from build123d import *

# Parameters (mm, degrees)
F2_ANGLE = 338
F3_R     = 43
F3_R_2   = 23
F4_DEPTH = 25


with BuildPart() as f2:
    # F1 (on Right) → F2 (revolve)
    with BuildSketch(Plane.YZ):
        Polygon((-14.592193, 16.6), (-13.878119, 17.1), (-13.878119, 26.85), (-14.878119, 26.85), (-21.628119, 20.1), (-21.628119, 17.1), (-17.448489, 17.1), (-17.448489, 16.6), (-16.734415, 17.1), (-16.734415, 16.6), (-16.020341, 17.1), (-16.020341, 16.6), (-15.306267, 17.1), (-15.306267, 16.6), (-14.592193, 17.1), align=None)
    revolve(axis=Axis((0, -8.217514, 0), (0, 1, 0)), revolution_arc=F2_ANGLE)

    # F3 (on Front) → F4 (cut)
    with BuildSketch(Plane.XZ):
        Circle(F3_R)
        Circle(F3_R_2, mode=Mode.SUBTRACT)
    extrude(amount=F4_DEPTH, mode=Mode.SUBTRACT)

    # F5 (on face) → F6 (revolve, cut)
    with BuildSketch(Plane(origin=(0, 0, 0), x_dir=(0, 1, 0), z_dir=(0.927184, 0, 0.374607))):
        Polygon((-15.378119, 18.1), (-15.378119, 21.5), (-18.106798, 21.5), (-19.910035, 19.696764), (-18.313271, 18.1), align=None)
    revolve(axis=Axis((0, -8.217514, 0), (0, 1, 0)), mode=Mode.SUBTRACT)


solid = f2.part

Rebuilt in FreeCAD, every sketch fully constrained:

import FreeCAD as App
import Part
import Sketcher
Q = App.Units.Quantity


def add_polygon(sketch, points):
    """Adds a closed chain of lines whose ends are joined by coincident constraints."""
    first, n = sketch.GeometryCount, len(points)
    for a, b in zip(points, points[1:] + points[:1]):
        sketch.addGeometry(Part.LineSegment(App.Vector(*a, 0), App.Vector(*b, 0)), False)
    for i in range(n):
        sketch.addConstraint(Sketcher.Constraint("Coincident", first + i, 2, first + (i + 1) % n, 1))

doc = App.newDocument("Part")
body = doc.addObject("PartDesign::Body", "Body")

# Sketch on YZ plane
sketch1 = body.newObject("Sketcher::SketchObject", "Sketch")
sketch1.AttachmentSupport = (doc.getObject("YZ_Plane"), [""])
sketch1.MapMode = "FlatFace"
add_polygon(sketch1, [(-14.592193, 16.6), (-13.878119, 17.1), (-13.878119, 26.85), (-14.878119, 26.85), (-21.628119, 20.1), (-21.628119, 17.1), (-17.448489, 17.1), (-17.448489, 16.6), (-16.734415, 17.1), (-16.734415, 16.6), (-16.020341, 17.1), (-16.020341, 16.6), (-15.306267, 17.1), (-15.306267, 16.6), (-14.592193, 17.1)])  # lines 0-14
sketch1.addConstraint([
    Sketcher.Constraint("Vertical", 1),
    Sketcher.Constraint("Horizontal", 2),
    Sketcher.Constraint("Vertical", 4),
    Sketcher.Constraint("Horizontal", 5),
    Sketcher.Constraint("Vertical", 6),
    Sketcher.Constraint("Vertical", 8),
    Sketcher.Constraint("Vertical", 10),
    Sketcher.Constraint("Vertical", 12),
    Sketcher.Constraint("Vertical", 14),
    Sketcher.Constraint("Parallel", 0, 7),
    Sketcher.Constraint("Parallel", 7, 9),
    Sketcher.Constraint("Parallel", 9, 11),
    Sketcher.Constraint("Parallel", 11, 13),
    Sketcher.Constraint("Horizontal", 0, 2, 4, 2),
    Sketcher.Constraint("Horizontal", 5, 2, 7, 2),
    Sketcher.Constraint("Horizontal", 6, 2, 8, 2),
    Sketcher.Constraint("Horizontal", 7, 2, 9, 2),
    Sketcher.Constraint("Horizontal", 8, 2, 10, 2),
    Sketcher.Constraint("Horizontal", 9, 2, 11, 2),
    Sketcher.Constraint("Horizontal", 10, 2, 12, 2),
    Sketcher.Constraint("Horizontal", 11, 2, 13, 2),
    Sketcher.Constraint("Horizontal", 12, 2, 14, 2),
    Sketcher.Constraint("DistanceX", 2, 2, 2, 1, 1.0),
    Sketcher.Constraint("DistanceY", 4, 2, 4, 1, 3.0),
    Sketcher.Constraint("Angle", 0, Q("35 deg")),
    Sketcher.Constraint("Angle", 3, Q("-135 deg")),
    Sketcher.Constraint("DistanceY", 6, 2, 6, 1, 0.5),
    Sketcher.Constraint("DistanceY", 1, 1, 1, 2, 9.75),
    Sketcher.Constraint("DistanceY", -1, 1, 0, 2, 17.1),
    Sketcher.Constraint("DistanceX", 0, 2, -1, 1, 13.878119),
])
revolution = body.newObject("PartDesign::Revolution", "Revolution")
revolution.Profile = sketch1
revolution.ReferenceAxis = (sketch1, ["H_Axis"])
revolution.Angle = 338

# Sketch on XZ plane
sketch2 = body.newObject("Sketcher::SketchObject", "Sketch001")
sketch2.AttachmentSupport = (doc.getObject("XZ_Plane"), [""])
sketch2.MapMode = "FlatFace"
sketch2.addGeometry([
    Part.Circle(App.Vector(0, 0, 0), App.Vector(0, 0, 1), 43),
    Part.Circle(App.Vector(0, 0, 0), App.Vector(0, 0, 1), 23),
], False)
sketch2.addConstraint([
    Sketcher.Constraint("Coincident", 0, 3, -1, 1),
    Sketcher.Constraint("Coincident", 1, 3, -1, 1),
    Sketcher.Constraint("Diameter", 0, 86.0),
    Sketcher.Constraint("Diameter", 1, 46.0),
])
pocket1 = body.newObject("PartDesign::Pocket", "Pocket")
pocket1.Profile = sketch2
pocket1.Length = 25
pocket1.Reversed = True

# Sketch on an angled plane
sketch3 = body.newObject("Sketcher::SketchObject", "Sketch002")
sketch3.Placement = App.Placement(App.Vector(0, 0, 0), App.Rotation(App.Vector(0, 1, 0), App.Vector(-0.374606892, 0, 0.927183734), App.Vector(0.927183734, 0, 0.374606892), "ZXY"))
add_polygon(sketch3, [(-15.378119, 18.1), (-15.378119, 21.5), (-18.106798, 21.5), (-19.910035, 19.696764), (-18.313271, 18.1)])  # lines 0-4
sketch3.addConstraint([
    Sketcher.Constraint("Vertical", 0),
    Sketcher.Constraint("Horizontal", 1),
    Sketcher.Constraint("Horizontal", 4),
    Sketcher.Constraint("Perpendicular", 2, 3),
    Sketcher.Constraint("Angle", 2, Q("-135.000016 deg")),
    Sketcher.Constraint("DistanceY", 0, 1, 0, 2, 3.4),
    Sketcher.Constraint("DistanceY", -1, 1, 0, 2, 21.5),
    Sketcher.Constraint("DistanceX", 1, 2, 1, 1, 2.728679),
    Sketcher.Constraint("DistanceX", 1, 2, -1, 1, 18.106798),
    Sketcher.Constraint("Distance", 2, 2.550162),
])
groove = body.newObject("PartDesign::Groove", "Groove")
groove.Profile = sketch3
groove.ReferenceAxis = (sketch3, ["H_Axis"])
groove.Angle = 360

doc.recompute()
